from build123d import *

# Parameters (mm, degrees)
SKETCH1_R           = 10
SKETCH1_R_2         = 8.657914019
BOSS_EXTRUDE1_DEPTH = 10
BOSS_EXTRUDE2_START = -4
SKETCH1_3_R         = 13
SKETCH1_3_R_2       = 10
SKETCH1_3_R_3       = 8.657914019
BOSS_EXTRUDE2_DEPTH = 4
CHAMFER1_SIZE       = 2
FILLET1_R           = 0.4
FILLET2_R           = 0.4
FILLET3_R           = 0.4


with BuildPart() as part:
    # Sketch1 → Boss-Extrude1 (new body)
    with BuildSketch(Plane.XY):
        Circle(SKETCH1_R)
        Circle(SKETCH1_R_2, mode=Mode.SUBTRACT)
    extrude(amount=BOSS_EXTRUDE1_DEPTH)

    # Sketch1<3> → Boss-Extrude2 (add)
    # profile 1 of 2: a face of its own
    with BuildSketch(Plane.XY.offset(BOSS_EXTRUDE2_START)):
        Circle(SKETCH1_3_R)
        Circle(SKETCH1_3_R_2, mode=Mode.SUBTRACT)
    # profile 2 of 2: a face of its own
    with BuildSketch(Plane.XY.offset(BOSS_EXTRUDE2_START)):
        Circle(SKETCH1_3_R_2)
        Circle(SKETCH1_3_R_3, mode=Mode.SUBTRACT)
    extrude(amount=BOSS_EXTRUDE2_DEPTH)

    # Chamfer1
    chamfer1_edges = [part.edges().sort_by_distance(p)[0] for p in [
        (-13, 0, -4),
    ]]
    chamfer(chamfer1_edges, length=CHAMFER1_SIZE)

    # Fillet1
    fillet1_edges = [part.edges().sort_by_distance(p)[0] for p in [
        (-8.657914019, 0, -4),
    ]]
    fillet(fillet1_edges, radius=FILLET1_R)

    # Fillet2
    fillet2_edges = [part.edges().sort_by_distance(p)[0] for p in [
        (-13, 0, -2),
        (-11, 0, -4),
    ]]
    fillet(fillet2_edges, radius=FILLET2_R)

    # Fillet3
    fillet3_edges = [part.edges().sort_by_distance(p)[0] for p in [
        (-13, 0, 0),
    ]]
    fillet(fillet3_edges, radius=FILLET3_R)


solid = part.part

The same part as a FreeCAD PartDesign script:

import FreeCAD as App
import Part
import Sketcher
Q = App.Units.Quantity


def edges_at(feature, points):
    """Names of the edges that pass closest to the given points."""
    edges = feature.Shape.Edges
    near = lambda p: min(range(len(edges)), key=lambda i: edges[i].distToShape(Part.Vertex(*p))[0])
    return sorted({f"Edge{near(p) + 1}" for p in points})

doc = App.newDocument("Part")
body = doc.addObject("PartDesign::Body", "Body")

# Sketch on XY plane
sketch1 = body.newObject("Sketcher::SketchObject", "Sketch")
sketch1.AttachmentSupport = (doc.getObject("XY_Plane"), [""])
sketch1.MapMode = "FlatFace"
sketch1.addGeometry(Part.Circle(App.Vector(0, 0, 0), App.Vector(0, 0, 1), 10), False)
sketch1.addGeometry(Part.Circle(App.Vector(0, 0, 0), App.Vector(0, 0, 1), 9), False)
sketch1.addConstraint(Sketcher.Constraint("Coincident", 0, 3, -1, 1))
sketch1.addConstraint(Sketcher.Constraint("Coincident", 1, 3, -1, 1))
sketch1.addConstraint(Sketcher.Constraint("Diameter", 0, Q("20 mm")))
sketch1.addConstraint(Sketcher.Constraint("Diameter", 1, Q("17.315828 mm")))
pad1 = body.newObject("PartDesign::Pad", "Pad")
pad1.Profile = sketch1
pad1.Length = 10

# Sketch on XY plane
sketch2 = body.newObject("Sketcher::SketchObject", "Sketch001")
sketch2.AttachmentSupport = (doc.getObject("XY_Plane"), [""])
sketch2.MapMode = "FlatFace"
sketch2.AttachmentOffset = App.Placement(App.Vector(0, 0, -4), App.Rotation())
sketch2.addGeometry(Part.Circle(App.Vector(0, 0, 0), App.Vector(0, 0, 1), 13), False)
sketch2.addGeometry(Part.Circle(App.Vector(0, 0, 0), App.Vector(0, 0, 1), 9), False)
sketch2.addConstraint(Sketcher.Constraint("Coincident", 0, 3, -1, 1))
sketch2.addConstraint(Sketcher.Constraint("Coincident", 1, 3, -1, 1))
sketch2.addConstraint(Sketcher.Constraint("Diameter", 0, Q("26 mm")))
sketch2.addConstraint(Sketcher.Constraint("Diameter", 1, Q("17.315828 mm")))
pad2 = body.newObject("PartDesign::Pad", "Pad001")
pad2.Profile = sketch2
pad2.Length = 4
doc.recompute()

chamfer = body.newObject("PartDesign::Chamfer", "Chamfer")
chamfer.Base = (pad2, edges_at(pad2, [(-13, 0, -4)]))
chamfer.Size = 2
doc.recompute()

fillet = body.newObject("PartDesign::Fillet", "Fillet")
fillet.Base = (chamfer, edges_at(chamfer, [(-8.658, 0, -4)]))
fillet.Radius = 0.4
doc.recompute()

fillet2 = body.newObject("PartDesign::Fillet", "Fillet001")
fillet2.Base = (fillet, edges_at(fillet, [(-13, 0, -2), (-11, 0, -4)]))
fillet2.Radius = 0.4
doc.recompute()

fillet3 = body.newObject("PartDesign::Fillet", "Fillet002")
fillet3.Base = (fillet2, edges_at(fillet2, [(-13, 0, 0)]))
fillet3.Radius = 0.4

doc.recompute()
